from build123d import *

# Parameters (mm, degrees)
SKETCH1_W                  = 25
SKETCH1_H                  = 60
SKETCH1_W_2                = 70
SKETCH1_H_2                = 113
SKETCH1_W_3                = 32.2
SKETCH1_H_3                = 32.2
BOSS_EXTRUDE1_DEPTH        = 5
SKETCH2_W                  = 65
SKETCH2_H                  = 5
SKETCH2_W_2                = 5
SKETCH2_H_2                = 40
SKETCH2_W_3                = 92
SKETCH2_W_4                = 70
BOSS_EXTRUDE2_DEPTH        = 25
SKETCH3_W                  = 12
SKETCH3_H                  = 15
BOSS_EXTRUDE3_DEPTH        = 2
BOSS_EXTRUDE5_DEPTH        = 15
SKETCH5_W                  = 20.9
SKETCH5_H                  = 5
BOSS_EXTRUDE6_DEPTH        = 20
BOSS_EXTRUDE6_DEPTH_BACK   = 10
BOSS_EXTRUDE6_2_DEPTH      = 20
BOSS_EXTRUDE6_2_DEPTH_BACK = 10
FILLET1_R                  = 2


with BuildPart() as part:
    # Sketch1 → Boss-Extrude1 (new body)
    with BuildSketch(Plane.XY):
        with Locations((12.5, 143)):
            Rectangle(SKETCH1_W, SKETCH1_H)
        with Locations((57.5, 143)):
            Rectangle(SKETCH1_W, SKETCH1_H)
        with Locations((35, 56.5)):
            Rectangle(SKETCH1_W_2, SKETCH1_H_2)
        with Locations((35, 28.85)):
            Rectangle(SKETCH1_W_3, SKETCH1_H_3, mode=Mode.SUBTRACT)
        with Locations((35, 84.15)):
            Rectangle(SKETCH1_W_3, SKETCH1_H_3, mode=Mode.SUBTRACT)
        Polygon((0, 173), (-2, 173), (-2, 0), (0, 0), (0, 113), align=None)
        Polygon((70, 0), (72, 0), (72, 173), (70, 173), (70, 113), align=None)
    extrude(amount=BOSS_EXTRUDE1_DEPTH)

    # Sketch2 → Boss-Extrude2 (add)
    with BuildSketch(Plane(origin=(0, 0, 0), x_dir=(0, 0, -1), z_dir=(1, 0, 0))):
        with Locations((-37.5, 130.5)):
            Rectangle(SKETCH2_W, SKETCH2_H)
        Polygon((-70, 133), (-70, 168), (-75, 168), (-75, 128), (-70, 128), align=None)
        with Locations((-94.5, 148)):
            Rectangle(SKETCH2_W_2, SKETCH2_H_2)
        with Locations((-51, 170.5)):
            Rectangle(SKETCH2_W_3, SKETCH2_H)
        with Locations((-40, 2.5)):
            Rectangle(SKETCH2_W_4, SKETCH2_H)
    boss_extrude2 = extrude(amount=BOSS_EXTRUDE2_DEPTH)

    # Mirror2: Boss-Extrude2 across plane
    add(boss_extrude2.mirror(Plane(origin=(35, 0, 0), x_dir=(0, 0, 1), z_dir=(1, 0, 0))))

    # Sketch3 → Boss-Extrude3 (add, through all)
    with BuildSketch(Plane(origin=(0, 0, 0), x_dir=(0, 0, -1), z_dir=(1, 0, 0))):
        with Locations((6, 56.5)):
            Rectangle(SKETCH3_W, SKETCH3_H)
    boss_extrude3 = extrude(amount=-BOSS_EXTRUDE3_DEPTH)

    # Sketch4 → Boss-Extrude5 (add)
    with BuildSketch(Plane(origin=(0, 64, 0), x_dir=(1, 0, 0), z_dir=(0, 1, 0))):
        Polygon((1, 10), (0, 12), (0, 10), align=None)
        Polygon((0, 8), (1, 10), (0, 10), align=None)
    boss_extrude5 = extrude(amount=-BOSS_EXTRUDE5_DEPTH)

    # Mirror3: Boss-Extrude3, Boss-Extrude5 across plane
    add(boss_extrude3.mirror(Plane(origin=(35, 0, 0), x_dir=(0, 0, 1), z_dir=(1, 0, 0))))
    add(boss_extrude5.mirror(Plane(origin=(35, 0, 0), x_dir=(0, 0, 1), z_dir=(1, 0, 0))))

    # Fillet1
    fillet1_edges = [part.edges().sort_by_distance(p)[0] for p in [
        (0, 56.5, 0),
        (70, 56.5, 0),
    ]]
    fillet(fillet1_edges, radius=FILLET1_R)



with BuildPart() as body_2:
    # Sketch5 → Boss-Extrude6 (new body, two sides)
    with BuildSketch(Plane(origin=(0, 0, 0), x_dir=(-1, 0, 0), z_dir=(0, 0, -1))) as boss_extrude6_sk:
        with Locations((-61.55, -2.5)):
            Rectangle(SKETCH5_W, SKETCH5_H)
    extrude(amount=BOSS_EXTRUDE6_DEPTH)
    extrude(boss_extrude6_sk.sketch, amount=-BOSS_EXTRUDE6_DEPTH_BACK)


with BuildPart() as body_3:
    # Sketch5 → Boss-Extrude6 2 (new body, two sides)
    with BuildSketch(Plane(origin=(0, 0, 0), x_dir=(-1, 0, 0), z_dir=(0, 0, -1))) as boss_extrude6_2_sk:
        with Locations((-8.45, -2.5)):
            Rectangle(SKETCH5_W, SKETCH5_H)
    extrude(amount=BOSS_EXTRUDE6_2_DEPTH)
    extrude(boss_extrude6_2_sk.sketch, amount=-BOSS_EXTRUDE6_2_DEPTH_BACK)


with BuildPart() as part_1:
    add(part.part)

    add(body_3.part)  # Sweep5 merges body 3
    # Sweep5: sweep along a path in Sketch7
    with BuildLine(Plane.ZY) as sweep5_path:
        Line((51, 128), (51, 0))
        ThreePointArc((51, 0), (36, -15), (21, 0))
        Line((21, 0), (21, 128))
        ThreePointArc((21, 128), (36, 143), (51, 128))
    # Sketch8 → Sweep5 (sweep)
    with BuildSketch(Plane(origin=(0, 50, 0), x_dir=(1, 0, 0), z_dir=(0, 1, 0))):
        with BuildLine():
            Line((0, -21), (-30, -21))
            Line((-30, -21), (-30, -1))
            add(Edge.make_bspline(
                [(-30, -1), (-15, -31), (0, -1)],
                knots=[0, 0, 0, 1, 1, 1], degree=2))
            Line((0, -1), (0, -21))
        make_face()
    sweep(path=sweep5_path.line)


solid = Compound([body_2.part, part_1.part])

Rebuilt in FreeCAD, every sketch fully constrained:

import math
import FreeCAD as App
import Part
import Sketcher
from FreeCAD import Vector


def edges_at(feature, points):
    """Names of the edges that pass closest to the given points."""
    edges = feature.Shape.Edges
    near = lambda p: min(range(len(edges)), key=lambda i: edges[i].distToShape(Part.Vertex(*p))[0])
    return sorted({f"Edge{near(p) + 1}" for p in points})

doc = App.newDocument("Part")
params = doc.addObject("Spreadsheet::Sheet", "Params")
for row, (alias, value) in enumerate([
    ("sketch1_width", "27 mm"),
    ("sketch1_width2", "74 mm"),
    ("sketch1_height", "173 mm"),
    ("sketch1_height2", "60 mm"),
    ("sketch1_width3", "32.2 mm"),
    ("pad1_length", "5 mm"),
    ("sketch2_width", "5 mm"),
    ("sketch2_width2", "35 mm"),
    ("sketch2_height", "65 mm"),
    ("sketch2_height2", "92 mm"),
    ("sketch2_height3", "17 mm"),
    ("pad2_length", "25 mm"),
    ("sketch3_width", "15 mm"),
    ("sketch3_height", "12 mm"),
    ("pad3_length", "2 mm"),
    ("sketch4_height", "4 mm"),
    ("pad4_length", "15 mm"),
    ("fillet_radius", "2 mm"),
    ("sketch5_height", "5 mm"),
    ("sketch5_width", "20.9 mm"),
    ("pad5_length", "20 mm"),
    ("pad5_length2", "10 mm"),
    ("sketch6_height", "5 mm"),
    ("sketch6_width", "20.9 mm"),
    ("pad6_length", "20 mm"),
    ("pad6_length2", "10 mm"),
    ("sketch7_height", "20 mm"),
    ("sketch8_radius", "15 mm"),
    ("sketch8_width", "128 mm"),
], start=1):
    params.set(f"A{row}", alias)
    params.set(f"B{row}", "=" + value)
    params.setAlias(f"B{row}", alias)

body = doc.addObject("PartDesign::Body", "Body")

sketch1 = doc.addObject("Sketcher::SketchObject", "Sketch")
body.addObject(sketch1)
sketch1.AttachmentSupport = (doc.XY_Plane, [""])
sketch1.MapMode = "FlatFace"
sketch1.addGeometry(Part.LineSegment(Vector(25, 173, 0), Vector(-2, 173, 0)), False)
sketch1.addGeometry(Part.LineSegment(Vector(-2, 173, 0), Vector(-2, 0, 0)), False)
sketch1.addGeometry(Part.LineSegment(Vector(-2, 0, 0), Vector(72, 0, 0)), False)
sketch1.addGeometry(Part.LineSegment(Vector(72, 0, 0), Vector(72, 173, 0)), False)
sketch1.addGeometry(Part.LineSegment(Vector(72, 173, 0), Vector(45, 173, 0)), False)
sketch1.addGeometry(Part.LineSegment(Vector(45, 173, 0), Vector(45, 113, 0)), False)
sketch1.addGeometry(Part.LineSegment(Vector(45, 113, 0), Vector(25, 113, 0)), False)
sketch1.addGeometry(Part.LineSegment(Vector(25, 113, 0), Vector(25, 173, 0)), False)
sketch1.addGeometry(Part.LineSegment(Vector(51.1, 12.75, 0), Vector(18.9, 12.75, 0)), False)
sketch1.addGeometry(Part.LineSegment(Vector(18.9, 12.75, 0), Vector(18.9, 44.95, 0)), False)
sketch1.addGeometry(Part.LineSegment(Vector(18.9, 44.95, 0), Vector(51.1, 44.95, 0)), False)
sketch1.addGeometry(Part.LineSegment(Vector(51.1, 44.95, 0), Vector(51.1, 12.75, 0)), False)
sketch1.addGeometry(Part.LineSegment(Vector(51.1, 68.05, 0), Vector(18.9, 68.05, 0)), False)
sketch1.addGeometry(Part.LineSegment(Vector(18.9, 68.05, 0), Vector(18.9, 100.25, 0)), False)
sketch1.addGeometry(Part.LineSegment(Vector(18.9, 100.25, 0), Vector(51.1, 100.25, 0)), False)
sketch1.addGeometry(Part.LineSegment(Vector(51.1, 100.25, 0), Vector(51.1, 68.05, 0)), False)
sketch1.addConstraint(Sketcher.Constraint("Coincident", 0, 2, 1, 1))
sketch1.addConstraint(Sketcher.Constraint("Coincident", 1, 2, 2, 1))
sketch1.addConstraint(Sketcher.Constraint("Coincident", 2, 2, 3, 1))
sketch1.addConstraint(Sketcher.Constraint("Coincident", 3, 2, 4, 1))
sketch1.addConstraint(Sketcher.Constraint("Coincident", 4, 2, 5, 1))
sketch1.addConstraint(Sketcher.Constraint("Coincident", 5, 2, 6, 1))
sketch1.addConstraint(Sketcher.Constraint("Coincident", 6, 2, 7, 1))
sketch1.addConstraint(Sketcher.Constraint("Coincident", 7, 2, 0, 1))
sketch1.addConstraint(Sketcher.Constraint("Coincident", 8, 2, 9, 1))
sketch1.addConstraint(Sketcher.Constraint("Coincident", 9, 2, 10, 1))
sketch1.addConstraint(Sketcher.Constraint("Coincident", 10, 2, 11, 1))
sketch1.addConstraint(Sketcher.Constraint("Coincident", 11, 2, 8, 1))
sketch1.addConstraint(Sketcher.Constraint("Coincident", 12, 2, 13, 1))
sketch1.addConstraint(Sketcher.Constraint("Coincident", 13, 2, 14, 1))
sketch1.addConstraint(Sketcher.Constraint("Coincident", 14, 2, 15, 1))
sketch1.addConstraint(Sketcher.Constraint("Coincident", 15, 2, 12, 1))
sketch1.addConstraint(Sketcher.Constraint("Horizontal", 0))
sketch1.addConstraint(Sketcher.Constraint("Vertical", 1))
sketch1.addConstraint(Sketcher.Constraint("Horizontal", 2))
sketch1.addConstraint(Sketcher.Constraint("Vertical", 3))
sketch1.addConstraint(Sketcher.Constraint("Horizontal", 4))
sketch1.addConstraint(Sketcher.Constraint("Vertical", 5))
sketch1.addConstraint(Sketcher.Constraint("Horizontal", 6))
sketch1.addConstraint(Sketcher.Constraint("Vertical", 7))
sketch1.addConstraint(Sketcher.Constraint("Horizontal", 8))
sketch1.addConstraint(Sketcher.Constraint("Vertical", 9))
sketch1.addConstraint(Sketcher.Constraint("Horizontal", 10))
sketch1.addConstraint(Sketcher.Constraint("Vertical", 11))
sketch1.addConstraint(Sketcher.Constraint("Horizontal", 12))
sketch1.addConstraint(Sketcher.Constraint("Vertical", 13))
sketch1.addConstraint(Sketcher.Constraint("Horizontal", 14))
sketch1.addConstraint(Sketcher.Constraint("Vertical", 15))
sketch1.addConstraint(Sketcher.Constraint("PointOnObject", 1, 2, -1))
sketch1.addConstraint(Sketcher.Constraint("Horizontal", 0, 2, 3, 2))
sketch1.addConstraint(Sketcher.Constraint("Vertical", 9, 2, 12, 2))
sketch1.addConstraint(Sketcher.Constraint("Vertical", 11, 2, 14, 2))
sketch1.addConstraint(Sketcher.Constraint("Equal", 0, 4))
sketch1.addConstraint(Sketcher.Constraint("Equal", 14, 9))
sketch1.addConstraint(Sketcher.Constraint("Equal", 11, 13))
sketch1.addConstraint(Sketcher.Constraint("DistanceX", 0, 2, 0, 1, 27.0))
sketch1.addConstraint(Sketcher.Constraint("DistanceX", 2, 1, 2, 2, 74.0))
sketch1.addConstraint(Sketcher.Constraint("DistanceY", 1, 2, 1, 1, 173.0))
sketch1.addConstraint(Sketcher.Constraint("DistanceY", 5, 2, 5, 1, 60.0))
sketch1.addConstraint(Sketcher.Constraint("DistanceX", 8, 2, 8, 1, 32.2))
sketch1.addConstraint(Sketcher.Constraint("DistanceX", 0, 2, -1, 1, 2.0))
sketch1.addConstraint(Sketcher.Constraint("DistanceX", -1, 1, 8, 2, 18.9))
sketch1.addConstraint(Sketcher.Constraint("DistanceY", 9, 2, 12, 2, 23.1))
sketch1.addConstraint(Sketcher.Constraint("DistanceY", -1, 1, 8, 2, 12.75))
sketch1.setExpression("Constraints[39]", "Params.sketch1_width")
sketch1.setExpression("Constraints[40]", "Params.sketch1_width2")
sketch1.setExpression("Constraints[41]", "Params.sketch1_height")
sketch1.setExpression("Constraints[42]", "Params.sketch1_height2")
sketch1.setExpression("Constraints[43]", "Params.sketch1_width3")
pad1 = doc.addObject("PartDesign::Pad", "Pad")
body.addObject(pad1)
pad1.Profile = sketch1
pad1.setExpression("Length", "Params.pad1_length")

sketch2 = doc.addObject("Sketcher::SketchObject", "Sketch001")
body.addObject(sketch2)
sketch2.AttachmentSupport = (doc.YZ_Plane, [""])
sketch2.MapMode = "FlatFace"
sketch2.addGeometry(Part.LineSegment(Vector(128, 5, 0), Vector(133, 5, 0)), False)
sketch2.addGeometry(Part.LineSegment(Vector(133, 5, 0), Vector(133, 70, 0)), False)
sketch2.addGeometry(Part.LineSegment(Vector(133, 70, 0), Vector(168, 70, 0)), False)
sketch2.addGeometry(Part.LineSegment(Vector(168, 70, 0), Vector(168, 5, 0)), False)
sketch2.addGeometry(Part.LineSegment(Vector(168, 5, 0), Vector(173, 5, 0)), False)
sketch2.addGeometry(Part.LineSegment(Vector(173, 5, 0), Vector(173, 97, 0)), False)
sketch2.addGeometry(Part.LineSegment(Vector(173, 97, 0), Vector(128, 97, 0)), False)
sketch2.addGeometry(Part.LineSegment(Vector(128, 97, 0), Vector(128, 92, 0)), False)
sketch2.addGeometry(Part.LineSegment(Vector(128, 92, 0), Vector(168, 92, 0)), False)
sketch2.addGeometry(Part.LineSegment(Vector(168, 92, 0), Vector(168, 75, 0)), False)
sketch2.addGeometry(Part.LineSegment(Vector(168, 75, 0), Vector(128, 75, 0)), False)
sketch2.addGeometry(Part.LineSegment(Vector(128, 75, 0), Vector(128, 5, 0)), False)
sketch2.addGeometry(Part.LineSegment(Vector(5, 75, 0), Vector(0, 75, 0)), False)
sketch2.addGeometry(Part.LineSegment(Vector(0, 75, 0), Vector(0, 5, 0)), False)
sketch2.addGeometry(Part.LineSegment(Vector(0, 5, 0), Vector(5, 5, 0)), False)
sketch2.addGeometry(Part.LineSegment(Vector(5, 5, 0), Vector(5, 75, 0)), False)
sketch2.addConstraint(Sketcher.Constraint("Coincident", 0, 2, 1, 1))
sketch2.addConstraint(Sketcher.Constraint("Coincident", 1, 2, 2, 1))
sketch2.addConstraint(Sketcher.Constraint("Coincident", 2, 2, 3, 1))
sketch2.addConstraint(Sketcher.Constraint("Coincident", 3, 2, 4, 1))
sketch2.addConstraint(Sketcher.Constraint("Coincident", 4, 2, 5, 1))
sketch2.addConstraint(Sketcher.Constraint("Coincident", 5, 2, 6, 1))
sketch2.addConstraint(Sketcher.Constraint("Coincident", 6, 2, 7, 1))
sketch2.addConstraint(Sketcher.Constraint("Coincident", 7, 2, 8, 1))
sketch2.addConstraint(Sketcher.Constraint("Coincident", 8, 2, 9, 1))
sketch2.addConstraint(Sketcher.Constraint("Coincident", 9, 2, 10, 1))
sketch2.addConstraint(Sketcher.Constraint("Coincident", 10, 2, 11, 1))
sketch2.addConstraint(Sketcher.Constraint("Coincident", 11, 2, 0, 1))
sketch2.addConstraint(Sketcher.Constraint("Coincident", 12, 2, 13, 1))
sketch2.addConstraint(Sketcher.Constraint("Coincident", 13, 2, 14, 1))
sketch2.addConstraint(Sketcher.Constraint("Coincident", 14, 2, 15, 1))
sketch2.addConstraint(Sketcher.Constraint("Coincident", 15, 2, 12, 1))
sketch2.addConstraint(Sketcher.Constraint("Horizontal", 0))
sketch2.addConstraint(Sketcher.Constraint("Vertical", 1))
sketch2.addConstraint(Sketcher.Constraint("Horizontal", 2))
sketch2.addConstraint(Sketcher.Constraint("Vertical", 3))
sketch2.addConstraint(Sketcher.Constraint("Horizontal", 4))
sketch2.addConstraint(Sketcher.Constraint("Vertical", 5))
sketch2.addConstraint(Sketcher.Constraint("Horizontal", 6))
sketch2.addConstraint(Sketcher.Constraint("Vertical", 7))
sketch2.addConstraint(Sketcher.Constraint("Horizontal", 8))
sketch2.addConstraint(Sketcher.Constraint("Vertical", 9))
sketch2.addConstraint(Sketcher.Constraint("Horizontal", 10))
sketch2.addConstraint(Sketcher.Constraint("Vertical", 11))
sketch2.addConstraint(Sketcher.Constraint("Horizontal", 12))
sketch2.addConstraint(Sketcher.Constraint("Vertical", 13))
sketch2.addConstraint(Sketcher.Constraint("Horizontal", 14))
sketch2.addConstraint(Sketcher.Constraint("Vertical", 15))
sketch2.addConstraint(Sketcher.Constraint("PointOnObject", 12, 2, -2))
sketch2.addConstraint(Sketcher.Constraint("Horizontal", 0, 2, 3, 2))
sketch2.addConstraint(Sketcher.Constraint("Horizontal", 10, 2, 12, 2))
sketch2.addConstraint(Sketcher.Constraint("Horizontal", 11, 2, 13, 2))
sketch2.addConstraint(Sketcher.Constraint("Vertical", 3, 2, 8, 2))
sketch2.addConstraint(Sketcher.Constraint("Vertical", 7, 2, 10, 2))
sketch2.addConstraint(Sketcher.Constraint("Equal", 0, 4))
sketch2.addConstraint(Sketcher.Constraint("Equal", 4, 12))
sketch2.addConstraint(Sketcher.Constraint("Equal", 14, 7))
sketch2.addConstraint(Sketcher.Constraint("DistanceX", 0, 1, 0, 2, 5.0))
sketch2.addConstraint(Sketcher.Constraint("DistanceX", 2, 1, 2, 2, 35.0))
sketch2.addConstraint(Sketcher.Constraint("DistanceY", 1, 1, 1, 2, 65.0))
sketch2.addConstraint(Sketcher.Constraint("DistanceY", 5, 1, 5, 2, 92.0))
sketch2.addConstraint(Sketcher.Constraint("DistanceY", 9, 2, 9, 1, 17.0))
sketch2.addConstraint(Sketcher.Constraint("DistanceX", -1, 1, 0, 2, 133.0))
sketch2.addConstraint(Sketcher.Constraint("DistanceY", -1, 1, 0, 2, 5.0))
sketch2.setExpression("Constraints[41]", "Params.sketch2_width")
sketch2.setExpression("Constraints[42]", "Params.sketch2_width2")
sketch2.setExpression("Constraints[43]", "Params.sketch2_height")
sketch2.setExpression("Constraints[44]", "Params.sketch2_height2")
sketch2.setExpression("Constraints[45]", "Params.sketch2_height3")
pad2 = doc.addObject("PartDesign::Pad", "Pad001")
body.addObject(pad2)
pad2.Profile = sketch2
pad2.setExpression("Length", "Params.pad2_length")
doc.recompute()

datumplane = doc.addObject("PartDesign::Plane", "DatumPlane")
body.addObject(datumplane)
datumplane.AttachmentSupport = (doc.YZ_Plane, [""])
datumplane.MapMode = "FlatFace"
datumplane.AttachmentOffset = App.Placement(Vector(0, 0, 35), App.Rotation())
mirrored = doc.addObject("PartDesign::Mirrored", "Mirrored")
body.addObject(mirrored)
mirrored.Originals = [pad2]
mirrored.MirrorPlane = (datumplane, [""])
body.Tip = mirrored

sketch3 = doc.addObject("Sketcher::SketchObject", "Sketch002")
body.addObject(sketch3)
sketch3.AttachmentSupport = (doc.YZ_Plane, [""])
sketch3.MapMode = "FlatFace"
sketch3.addGeometry(Part.LineSegment(Vector(64, 0, 0), Vector(49, 0, 0)), False)
sketch3.addGeometry(Part.LineSegment(Vector(49, 0, 0), Vector(49, -12, 0)), False)
sketch3.addGeometry(Part.LineSegment(Vector(49, -12, 0), Vector(64, -12, 0)), False)
sketch3.addGeometry(Part.LineSegment(Vector(64, -12, 0), Vector(64, 0, 0)), False)
sketch3.addConstraint(Sketcher.Constraint("Coincident", 0, 2, 1, 1))
sketch3.addConstraint(Sketcher.Constraint("Coincident", 1, 2, 2, 1))
sketch3.addConstraint(Sketcher.Constraint("Coincident", 2, 2, 3, 1))
sketch3.addConstraint(Sketcher.Constraint("Coincident", 3, 2, 0, 1))
sketch3.addConstraint(Sketcher.Constraint("Horizontal", 0))
sketch3.addConstraint(Sketcher.Constraint("Vertical", 1))
sketch3.addConstraint(Sketcher.Constraint("Horizontal", 2))
sketch3.addConstraint(Sketcher.Constraint("Vertical", 3))
sketch3.addConstraint(Sketcher.Constraint("PointOnObject", 0, 2, -1))
sketch3.addConstraint(Sketcher.Constraint("DistanceX", 0, 2, 0, 1, 15.0))
sketch3.addConstraint(Sketcher.Constraint("DistanceY", 1, 2, 1, 1, 12.0))
sketch3.addConstraint(Sketcher.Constraint("DistanceX", -1, 1, 0, 2, 49.0))
sketch3.setExpression("Constraints[9]", "Params.sketch3_width")
sketch3.setExpression("Constraints[10]", "Params.sketch3_height")
pad3 = doc.addObject("PartDesign::Pad", "Pad002")
body.addObject(pad3)
pad3.Profile = sketch3
pad3.setExpression("Length", "Params.pad3_length")
pad3.Reversed = True

sketch4 = doc.addObject("Sketcher::SketchObject", "Sketch003")
body.addObject(sketch4)
sketch4.AttachmentSupport = (doc.XZ_Plane, [""])
sketch4.MapMode = "FlatFace"
sketch4.AttachmentOffset = App.Placement(Vector(0, 0, -64), App.Rotation())
sketch4.addGeometry(Part.LineSegment(Vector(1, -10, 0), Vector(0, -12, 0)), False)
sketch4.addGeometry(Part.LineSegment(Vector(0, -12, 0), Vector(0, -8, 0)), False)
sketch4.addGeometry(Part.LineSegment(Vector(0, -8, 0), Vector(1, -10, 0)), False)
sketch4.addConstraint(Sketcher.Constraint("Coincident", 0, 2, 1, 1))
sketch4.addConstraint(Sketcher.Constraint("Coincident", 1, 2, 2, 1))
sketch4.addConstraint(Sketcher.Constraint("Coincident", 2, 2, 0, 1))
sketch4.addConstraint(Sketcher.Constraint("Vertical", 1))
sketch4.addConstraint(Sketcher.Constraint("PointOnObject", 0, 2, -2))
sketch4.addConstraint(Sketcher.Constraint("Equal", 0, 2))
sketch4.addConstraint(Sketcher.Constraint("DistanceY", 1, 1, 1, 2, 4.0))
sketch4.addConstraint(Sketcher.Constraint("DistanceY", 0, 2, -1, 1, 12.0))
sketch4.addConstraint(Sketcher.Constraint("DistanceX", -1, 1, 2, 2, 1.0))
sketch4.setExpression("Constraints[6]", "Params.sketch4_height")
pad4 = doc.addObject("PartDesign::Pad", "Pad003")
body.addObject(pad4)
pad4.Profile = sketch4
pad4.setExpression("Length", "Params.pad4_length")
doc.recompute()

datumplane2 = doc.addObject("PartDesign::Plane", "DatumPlane001")
body.addObject(datumplane2)
datumplane2.AttachmentSupport = (doc.YZ_Plane, [""])
datumplane2.MapMode = "FlatFace"
datumplane2.AttachmentOffset = App.Placement(Vector(0, 0, 35), App.Rotation())
mirrored2 = doc.addObject("PartDesign::Mirrored", "Mirrored001")
body.addObject(mirrored2)
mirrored2.Originals = [pad3, pad4]
mirrored2.MirrorPlane = (datumplane2, [""])
body.Tip = mirrored2
doc.recompute()

fillet = doc.addObject("PartDesign::Fillet", "Fillet")
body.addObject(fillet)
fillet.Base = (mirrored2, edges_at(mirrored2, [(0, 56.5, 0), (70, 56.5, 0)]))
fillet.setExpression("Radius", "Params.fillet_radius")
body2 = doc.addObject("PartDesign::Body", "Body001")

sketch5 = doc.addObject("Sketcher::SketchObject", "Sketch004")
body2.addObject(sketch5)
sketch5.AttachmentSupport = (doc.getObject("XY_Plane001"), [""])
sketch5.MapMode = "FlatFace"
sketch5.addGeometry(Part.LineSegment(Vector(72, 0, 0), Vector(72, -5, 0)), False)
sketch5.addGeometry(Part.LineSegment(Vector(72, -5, 0), Vector(51.1, -5, 0)), False)
sketch5.addGeometry(Part.LineSegment(Vector(51.1, -5, 0), Vector(51.1, 0, 0)), False)
sketch5.addGeometry(Part.LineSegment(Vector(51.1, 0, 0), Vector(72, 0, 0)), False)
sketch5.addConstraint(Sketcher.Constraint("Coincident", 0, 2, 1, 1))
sketch5.addConstraint(Sketcher.Constraint("Coincident", 1, 2, 2, 1))
sketch5.addConstraint(Sketcher.Constraint("Coincident", 2, 2, 3, 1))
sketch5.addConstraint(Sketcher.Constraint("Coincident", 3, 2, 0, 1))
sketch5.addConstraint(Sketcher.Constraint("Vertical", 0))
sketch5.addConstraint(Sketcher.Constraint("Horizontal", 1))
sketch5.addConstraint(Sketcher.Constraint("Vertical", 2))
sketch5.addConstraint(Sketcher.Constraint("Horizontal", 3))
sketch5.addConstraint(Sketcher.Constraint("PointOnObject", 2, 2, -1))
sketch5.addConstraint(Sketcher.Constraint("DistanceY", 0, 2, 0, 1, 5.0))
sketch5.addConstraint(Sketcher.Constraint("DistanceX", 1, 2, 1, 1, 20.9))
sketch5.addConstraint(Sketcher.Constraint("DistanceX", -1, 1, 0, 2, 72.0))
sketch5.setExpression("Constraints[9]", "Params.sketch5_height")
sketch5.setExpression("Constraints[10]", "Params.sketch5_width")
pad5 = doc.addObject("PartDesign::Pad", "Pad004")
body2.addObject(pad5)
pad5.Profile = sketch5
pad5.Type = "TwoLengths"
pad5.setExpression("Length", "Params.pad5_length")
pad5.setExpression("Length2", "Params.pad5_length2")
pad5.Reversed = True
body3 = doc.addObject("PartDesign::Body", "Body002")

sketch6 = doc.addObject("Sketcher::SketchObject", "Sketch005")
body3.addObject(sketch6)
sketch6.AttachmentSupport = (doc.getObject("XY_Plane002"), [""])
sketch6.MapMode = "FlatFace"
sketch6.addGeometry(Part.LineSegment(Vector(18.9, 0, 0), Vector(18.9, -5, 0)), False)
sketch6.addGeometry(Part.LineSegment(Vector(18.9, -5, 0), Vector(-2, -5, 0)), False)
sketch6.addGeometry(Part.LineSegment(Vector(-2, -5, 0), Vector(-2, 0, 0)), False)
sketch6.addGeometry(Part.LineSegment(Vector(-2, 0, 0), Vector(18.9, 0, 0)), False)
sketch6.addConstraint(Sketcher.Constraint("Coincident", 0, 2, 1, 1))
sketch6.addConstraint(Sketcher.Constraint("Coincident", 1, 2, 2, 1))
sketch6.addConstraint(Sketcher.Constraint("Coincident", 2, 2, 3, 1))
sketch6.addConstraint(Sketcher.Constraint("Coincident", 3, 2, 0, 1))
sketch6.addConstraint(Sketcher.Constraint("Vertical", 0))
sketch6.addConstraint(Sketcher.Constraint("Horizontal", 1))
sketch6.addConstraint(Sketcher.Constraint("Vertical", 2))
sketch6.addConstraint(Sketcher.Constraint("Horizontal", 3))
sketch6.addConstraint(Sketcher.Constraint("PointOnObject", 2, 2, -1))
sketch6.addConstraint(Sketcher.Constraint("DistanceY", 0, 2, 0, 1, 5.0))
sketch6.addConstraint(Sketcher.Constraint("DistanceX", 1, 2, 1, 1, 20.9))
sketch6.addConstraint(Sketcher.Constraint("DistanceX", 1, 2, -1, 1, 2.0))
sketch6.setExpression("Constraints[9]", "Params.sketch6_height")
sketch6.setExpression("Constraints[10]", "Params.sketch6_width")
pad6 = doc.addObject("PartDesign::Pad", "Pad005")
body3.addObject(pad6)
pad6.Profile = sketch6
pad6.Type = "TwoLengths"
pad6.setExpression("Length", "Params.pad6_length")
pad6.setExpression("Length2", "Params.pad6_length2")
pad6.Reversed = True
doc.recompute()

boolean = doc.addObject("PartDesign::Boolean", "Boolean")
body.addObject(boolean)
boolean.Type = "Fuse"
boolean.addObjects([body3])

sketch7 = doc.addObject("Sketcher::SketchObject", "Sketch006")
body.addObject(sketch7)
sketch7.AttachmentSupport = (doc.XZ_Plane, [""])
sketch7.MapMode = "FlatFace"
sketch7.AttachmentOffset = App.Placement(Vector(0, 0, -50), App.Rotation())
sketch7.addGeometry(Part.LineSegment(Vector(-30, 21, 0), Vector(0, 21, 0)), False)
sketch7.addGeometry(Part.LineSegment(Vector(0, 21, 0), Vector(0, 1, 0)), False)
sketch7.addGeometry(Part.BSplineCurve([Vector(-30, 1, 0), Vector(-15, 31, 0), Vector(0, 1, 0)], [3, 3], [0, 1], False, 2, [1, 1, 1], False), False)
sketch7.addGeometry(Part.LineSegment(Vector(-30, 1, 0), Vector(-30, 21, 0)), False)
sketch7.addConstraint(Sketcher.Constraint("Block", 2))
sketch7.addConstraint(Sketcher.Constraint("Coincident", 0, 2, 1, 1))
sketch7.addConstraint(Sketcher.Constraint("Coincident", 1, 2, 2, 2))
sketch7.addConstraint(Sketcher.Constraint("Coincident", 2, 1, 3, 1))
sketch7.addConstraint(Sketcher.Constraint("Coincident", 3, 2, 0, 1))
sketch7.addConstraint(Sketcher.Constraint("Horizontal", 0))
sketch7.addConstraint(Sketcher.Constraint("Vertical", 1))
sketch7.addConstraint(Sketcher.Constraint("Vertical", 3))
sketch7.addConstraint(Sketcher.Constraint("DistanceY", 1, 2, 1, 1, 20.0))
sketch7.setExpression("Constraints[8]", "Params.sketch7_height")

sketch8 = doc.addObject("Sketcher::SketchObject", "Sketch007")
body.addObject(sketch8)
sketch8.AttachmentSupport = (doc.YZ_Plane, [""])
sketch8.MapMode = "FlatFace"
sketch8.addGeometry(Part.LineSegment(Vector(128, 51, 0), Vector(0, 51, 0)), False)
sketch8.addGeometry(Part.ArcOfCircle(Part.Circle(Vector(0, 36, 0), Vector(0, 0, 1), 15), math.radians(90), math.radians(270)), False)
sketch8.addGeometry(Part.LineSegment(Vector(0, 21, 0), Vector(128, 21, 0)), False)
sketch8.addGeometry(Part.ArcOfCircle(Part.Circle(Vector(128, 36, 0), Vector(0, 0, 1), 15), math.radians(-90), math.radians(90)), False)
sketch8.addConstraint(Sketcher.Constraint("Tangent", 0, 2, 1, 1))
sketch8.addConstraint(Sketcher.Constraint("Tangent", 1, 2, 2, 1))
sketch8.addConstraint(Sketcher.Constraint("Tangent", 2, 2, 3, 1))
sketch8.addConstraint(Sketcher.Constraint("Tangent", 3, 2, 0, 1))
sketch8.addConstraint(Sketcher.Constraint("Horizontal", 0))
sketch8.addConstraint(Sketcher.Constraint("Horizontal", 2))
sketch8.addConstraint(Sketcher.Constraint("PointOnObject", 1, 3, -2))
sketch8.addConstraint(Sketcher.Constraint("Radius", 1, 15.0))
sketch8.addConstraint(Sketcher.Constraint("DistanceX", 0, 2, 0, 1, 128.0))
sketch8.addConstraint(Sketcher.Constraint("DistanceY", -1, 1, 1, 3, 36.0))
sketch8.setExpression("Constraints[7]", "Params.sketch8_radius")
sketch8.setExpression("Constraints[8]", "Params.sketch8_width")
doc.recompute()

additivepipe = doc.addObject("PartDesign::AdditivePipe", "AdditivePipe")
body.addObject(additivepipe)
additivepipe.Profile = sketch7
additivepipe.Spine = (sketch8, ["Edge1", "Edge2", "Edge3", "Edge4"])

doc.recompute()
